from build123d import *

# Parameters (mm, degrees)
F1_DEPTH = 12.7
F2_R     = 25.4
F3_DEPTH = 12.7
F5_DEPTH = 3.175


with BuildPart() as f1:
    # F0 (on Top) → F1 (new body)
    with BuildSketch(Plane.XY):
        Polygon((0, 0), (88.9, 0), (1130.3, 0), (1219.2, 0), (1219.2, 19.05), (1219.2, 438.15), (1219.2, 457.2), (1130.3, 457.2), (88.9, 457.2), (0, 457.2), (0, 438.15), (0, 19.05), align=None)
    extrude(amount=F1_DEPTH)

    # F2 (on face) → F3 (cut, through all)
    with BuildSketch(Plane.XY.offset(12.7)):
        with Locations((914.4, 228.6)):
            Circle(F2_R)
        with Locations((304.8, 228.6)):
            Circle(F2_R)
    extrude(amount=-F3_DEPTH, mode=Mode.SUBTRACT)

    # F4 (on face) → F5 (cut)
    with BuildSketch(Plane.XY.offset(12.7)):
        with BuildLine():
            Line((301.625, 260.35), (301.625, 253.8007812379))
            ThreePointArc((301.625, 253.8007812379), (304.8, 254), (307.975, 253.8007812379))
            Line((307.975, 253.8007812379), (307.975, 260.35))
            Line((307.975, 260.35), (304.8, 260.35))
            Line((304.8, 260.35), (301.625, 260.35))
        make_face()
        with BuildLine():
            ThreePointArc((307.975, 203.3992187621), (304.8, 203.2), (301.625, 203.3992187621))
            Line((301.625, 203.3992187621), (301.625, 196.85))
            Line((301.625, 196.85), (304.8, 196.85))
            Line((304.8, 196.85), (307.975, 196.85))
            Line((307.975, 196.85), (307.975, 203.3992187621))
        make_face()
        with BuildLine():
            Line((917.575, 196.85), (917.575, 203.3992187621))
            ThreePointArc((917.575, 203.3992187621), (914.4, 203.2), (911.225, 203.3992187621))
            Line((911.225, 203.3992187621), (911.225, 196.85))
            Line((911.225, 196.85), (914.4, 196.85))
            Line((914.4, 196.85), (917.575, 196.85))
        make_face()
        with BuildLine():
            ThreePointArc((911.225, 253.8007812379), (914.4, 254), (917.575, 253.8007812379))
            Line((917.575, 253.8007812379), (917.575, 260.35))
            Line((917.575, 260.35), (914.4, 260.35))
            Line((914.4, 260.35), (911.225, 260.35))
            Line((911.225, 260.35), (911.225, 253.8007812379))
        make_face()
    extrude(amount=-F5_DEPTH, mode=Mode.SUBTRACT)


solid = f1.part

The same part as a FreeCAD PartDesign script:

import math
import FreeCAD as App
import Part
import Sketcher

V = App.Vector
Q = App.Units.Quantity

doc = App.newDocument("Part")
body = doc.addObject("PartDesign::Body", "Body")

sketch1 = body.newObject("Sketcher::SketchObject", "Sketch")
sketch1.AttachmentSupport = (doc.getObject("XY_Plane"), [""])
sketch1.MapMode = "FlatFace"
sketch1.addGeometry(Part.LineSegment(V(0, 0, 0), V(1219, 0, 0)), False)
sketch1.addGeometry(Part.LineSegment(V(1219, 0, 0), V(1219, 457, 0)), False)
sketch1.addGeometry(Part.LineSegment(V(1219, 457, 0), V(0, 457, 0)), False)
sketch1.addGeometry(Part.LineSegment(V(0, 457, 0), V(0, 0, 0)), False)
sketch1.addConstraint(Sketcher.Constraint("Coincident", 0, 2, 1, 1))
sketch1.addConstraint(Sketcher.Constraint("Coincident", 1, 2, 2, 1))
sketch1.addConstraint(Sketcher.Constraint("Coincident", 2, 2, 3, 1))
sketch1.addConstraint(Sketcher.Constraint("Coincident", 3, 2, 0, 1))
sketch1.addConstraint(Sketcher.Constraint("Horizontal", 0))
sketch1.addConstraint(Sketcher.Constraint("Vertical", 1))
sketch1.addConstraint(Sketcher.Constraint("Horizontal", 2))
sketch1.addConstraint(Sketcher.Constraint("Vertical", 3))
sketch1.addConstraint(Sketcher.Constraint("Coincident", 3, 2, -1, 1))
sketch1.addConstraint(Sketcher.Constraint("DistanceX", 0, 1, 0, 2, Q("48 in")))
sketch1.addConstraint(Sketcher.Constraint("DistanceY", 1, 1, 1, 2, Q("18 in")))
pad1 = body.newObject("PartDesign::Pad", "Pad")
pad1.Profile = sketch1
pad1.Length = Q("0.5 in")

sketch2 = body.newObject("Sketcher::SketchObject", "Sketch001")
sketch2.AttachmentSupport = (doc.getObject("XY_Plane"), [""])
sketch2.MapMode = "FlatFace"
sketch2.AttachmentOffset = App.Placement(V(0, 0, 0.5 * 25.4), App.Rotation())
sketch2.addGeometry(Part.Circle(V(914, 229, 0), V(0, 0, 1), 25), False)
sketch2.addGeometry(Part.Circle(V(305, 229, 0), V(0, 0, 1), 25), False)
sketch2.addConstraint(Sketcher.Constraint("Equal", 0, 1))
sketch2.addConstraint(Sketcher.Constraint("Horizontal", 0, 3, 1, 3))
sketch2.addConstraint(Sketcher.Constraint("Diameter", 0, Q("2 in")))
sketch2.addConstraint(Sketcher.Constraint("DistanceX", -1, 1, 0, 3, Q("36 in")))
sketch2.addConstraint(Sketcher.Constraint("DistanceY", -1, 1, 0, 3, Q("9 in")))
sketch2.addConstraint(Sketcher.Constraint("DistanceX", -1, 1, 1, 3, Q("12 in")))
pocket1 = body.newObject("PartDesign::Pocket", "Pocket")
pocket1.Profile = sketch2
pocket1.Type = "ThroughAll"

sketch3 = body.newObject("Sketcher::SketchObject", "Sketch002")
sketch3.AttachmentSupport = (doc.getObject("XY_Plane"), [""])
sketch3.MapMode = "FlatFace"
sketch3.AttachmentOffset = App.Placement(V(0, 0, 0.5 * 25.4), App.Rotation())
sketch3.addGeometry(Part.LineSegment(V(302, 260, 0), V(302, 254, 0)), False)
sketch3.addGeometry(Part.ArcOfCircle(Part.Circle(V(305, 229, 0), V(0, 0, 1), 25), math.radians(82.82), math.radians(97.18)), False)
sketch3.addGeometry(Part.LineSegment(V(308, 254, 0), V(308, 260, 0)), False)
sketch3.addGeometry(Part.LineSegment(V(308, 260, 0), V(302, 260, 0)), False)
sketch3.addGeometry(Part.ArcOfCircle(Part.Circle(V(305, 229, 0), V(0, 0, 1), 25), math.radians(-97.18), math.radians(-82.82)), False)
sketch3.addGeometry(Part.LineSegment(V(302, 203, 0), V(302, 197, 0)), False)
sketch3.addGeometry(Part.LineSegment(V(302, 197, 0), V(308, 197, 0)), False)
sketch3.addGeometry(Part.LineSegment(V(308, 197, 0), V(308, 203, 0)), False)
sketch3.addGeometry(Part.LineSegment(V(918, 197, 0), V(918, 203, 0)), False)
sketch3.addGeometry(Part.ArcOfCircle(Part.Circle(V(914, 229, 0), V(0, 0, 1), 25), math.radians(-97.18), math.radians(-82.82)), False)
sketch3.addGeometry(Part.LineSegment(V(911, 203, 0), V(911, 197, 0)), False)
sketch3.addGeometry(Part.LineSegment(V(911, 197, 0), V(918, 197, 0)), False)
sketch3.addGeometry(Part.ArcOfCircle(Part.Circle(V(914, 229, 0), V(0, 0, 1), 25), math.radians(82.82), math.radians(97.18)), False)
sketch3.addGeometry(Part.LineSegment(V(918, 254, 0), V(918, 260, 0)), False)
sketch3.addGeometry(Part.LineSegment(V(918, 260, 0), V(911, 260, 0)), False)
sketch3.addGeometry(Part.LineSegment(V(911, 260, 0), V(911, 254, 0)), False)
sketch3.addConstraint(Sketcher.Constraint("Coincident", 0, 2, 1, 2))
sketch3.addConstraint(Sketcher.Constraint("Coincident", 1, 1, 2, 1))
sketch3.addConstraint(Sketcher.Constraint("Coincident", 2, 2, 3, 1))
sketch3.addConstraint(Sketcher.Constraint("Coincident", 3, 2, 0, 1))
sketch3.addConstraint(Sketcher.Constraint("Coincident", 4, 1, 5, 1))
sketch3.addConstraint(Sketcher.Constraint("Coincident", 5, 2, 6, 1))
sketch3.addConstraint(Sketcher.Constraint("Coincident", 6, 2, 7, 1))
sketch3.addConstraint(Sketcher.Constraint("Coincident", 7, 2, 4, 2))
sketch3.addConstraint(Sketcher.Constraint("Coincident", 8, 2, 9, 2))
sketch3.addConstraint(Sketcher.Constraint("Coincident", 9, 1, 10, 1))
sketch3.addConstraint(Sketcher.Constraint("Coincident", 10, 2, 11, 1))
sketch3.addConstraint(Sketcher.Constraint("Coincident", 11, 2, 8, 1))
sketch3.addConstraint(Sketcher.Constraint("Coincident", 12, 1, 13, 1))
sketch3.addConstraint(Sketcher.Constraint("Coincident", 13, 2, 14, 1))
sketch3.addConstraint(Sketcher.Constraint("Coincident", 14, 2, 15, 1))
sketch3.addConstraint(Sketcher.Constraint("Coincident", 15, 2, 12, 2))
sketch3.addConstraint(Sketcher.Constraint("Vertical", 0))
sketch3.addConstraint(Sketcher.Constraint("Vertical", 2))
sketch3.addConstraint(Sketcher.Constraint("Horizontal", 3))
sketch3.addConstraint(Sketcher.Constraint("Vertical", 5))
sketch3.addConstraint(Sketcher.Constraint("Horizontal", 6))
sketch3.addConstraint(Sketcher.Constraint("Vertical", 7))
sketch3.addConstraint(Sketcher.Constraint("Vertical", 8))
sketch3.addConstraint(Sketcher.Constraint("Vertical", 10))
sketch3.addConstraint(Sketcher.Constraint("Horizontal", 11))
sketch3.addConstraint(Sketcher.Constraint("Vertical", 13))
sketch3.addConstraint(Sketcher.Constraint("Horizontal", 14))
sketch3.addConstraint(Sketcher.Constraint("Vertical", 15))
sketch3.addConstraint(Sketcher.Constraint("Coincident", 4, 3, 1, 3))
sketch3.addConstraint(Sketcher.Constraint("Coincident", 12, 3, 9, 3))
sketch3.addConstraint(Sketcher.Constraint("Equal", 1, 4))
sketch3.addConstraint(Sketcher.Constraint("Equal", 4, 9))
sketch3.addConstraint(Sketcher.Constraint("Equal", 9, 12))
sketch3.addConstraint(Sketcher.Constraint("Horizontal", 4, 3, 9, 3))
sketch3.addConstraint(Sketcher.Constraint("Horizontal", 0, 2, 1, 1))
sketch3.addConstraint(Sketcher.Constraint("Horizontal", 4, 1, 7, 2))
sketch3.addConstraint(Sketcher.Constraint("Horizontal", 7, 2, 8, 2))
sketch3.addConstraint(Sketcher.Constraint("Horizontal", 8, 2, 9, 1))
sketch3.addConstraint(Sketcher.Constraint("Horizontal", 6, 2, 10, 2))
sketch3.addConstraint(Sketcher.Constraint("Horizontal", 1, 1, 12, 1))
sketch3.addConstraint(Sketcher.Constraint("Horizontal", 3, 2, 13, 2))
sketch3.addConstraint(Sketcher.Constraint("Horizontal", 12, 1, 15, 2))
sketch3.addConstraint(Sketcher.Constraint("Vertical", 3, 2, 4, 1))
sketch3.addConstraint(Sketcher.Constraint("Equal", 2, 5))
sketch3.addConstraint(Sketcher.Constraint("Radius", 1, Q("1 in")))
sketch3.addConstraint(Sketcher.Constraint("DistanceX", -1, 1, 1, 3, Q("12 in")))
sketch3.addConstraint(Sketcher.Constraint("DistanceY", -1, 1, 1, 3, Q("9 in")))
sketch3.addConstraint(Sketcher.Constraint("DistanceX", -1, 1, 9, 3, Q("36 in")))
sketch3.addConstraint(Sketcher.Constraint("DistanceX", 3, 2, 3, 1, Q("0.25 in")))
sketch3.addConstraint(Sketcher.Constraint("DistanceY", -1, 1, 2, 2, Q("10.25 in")))
pocket2 = body.newObject("PartDesign::Pocket", "Pocket001")
pocket2.Profile = sketch3
pocket2.Length = Q("0.125 in")

doc.recompute()
